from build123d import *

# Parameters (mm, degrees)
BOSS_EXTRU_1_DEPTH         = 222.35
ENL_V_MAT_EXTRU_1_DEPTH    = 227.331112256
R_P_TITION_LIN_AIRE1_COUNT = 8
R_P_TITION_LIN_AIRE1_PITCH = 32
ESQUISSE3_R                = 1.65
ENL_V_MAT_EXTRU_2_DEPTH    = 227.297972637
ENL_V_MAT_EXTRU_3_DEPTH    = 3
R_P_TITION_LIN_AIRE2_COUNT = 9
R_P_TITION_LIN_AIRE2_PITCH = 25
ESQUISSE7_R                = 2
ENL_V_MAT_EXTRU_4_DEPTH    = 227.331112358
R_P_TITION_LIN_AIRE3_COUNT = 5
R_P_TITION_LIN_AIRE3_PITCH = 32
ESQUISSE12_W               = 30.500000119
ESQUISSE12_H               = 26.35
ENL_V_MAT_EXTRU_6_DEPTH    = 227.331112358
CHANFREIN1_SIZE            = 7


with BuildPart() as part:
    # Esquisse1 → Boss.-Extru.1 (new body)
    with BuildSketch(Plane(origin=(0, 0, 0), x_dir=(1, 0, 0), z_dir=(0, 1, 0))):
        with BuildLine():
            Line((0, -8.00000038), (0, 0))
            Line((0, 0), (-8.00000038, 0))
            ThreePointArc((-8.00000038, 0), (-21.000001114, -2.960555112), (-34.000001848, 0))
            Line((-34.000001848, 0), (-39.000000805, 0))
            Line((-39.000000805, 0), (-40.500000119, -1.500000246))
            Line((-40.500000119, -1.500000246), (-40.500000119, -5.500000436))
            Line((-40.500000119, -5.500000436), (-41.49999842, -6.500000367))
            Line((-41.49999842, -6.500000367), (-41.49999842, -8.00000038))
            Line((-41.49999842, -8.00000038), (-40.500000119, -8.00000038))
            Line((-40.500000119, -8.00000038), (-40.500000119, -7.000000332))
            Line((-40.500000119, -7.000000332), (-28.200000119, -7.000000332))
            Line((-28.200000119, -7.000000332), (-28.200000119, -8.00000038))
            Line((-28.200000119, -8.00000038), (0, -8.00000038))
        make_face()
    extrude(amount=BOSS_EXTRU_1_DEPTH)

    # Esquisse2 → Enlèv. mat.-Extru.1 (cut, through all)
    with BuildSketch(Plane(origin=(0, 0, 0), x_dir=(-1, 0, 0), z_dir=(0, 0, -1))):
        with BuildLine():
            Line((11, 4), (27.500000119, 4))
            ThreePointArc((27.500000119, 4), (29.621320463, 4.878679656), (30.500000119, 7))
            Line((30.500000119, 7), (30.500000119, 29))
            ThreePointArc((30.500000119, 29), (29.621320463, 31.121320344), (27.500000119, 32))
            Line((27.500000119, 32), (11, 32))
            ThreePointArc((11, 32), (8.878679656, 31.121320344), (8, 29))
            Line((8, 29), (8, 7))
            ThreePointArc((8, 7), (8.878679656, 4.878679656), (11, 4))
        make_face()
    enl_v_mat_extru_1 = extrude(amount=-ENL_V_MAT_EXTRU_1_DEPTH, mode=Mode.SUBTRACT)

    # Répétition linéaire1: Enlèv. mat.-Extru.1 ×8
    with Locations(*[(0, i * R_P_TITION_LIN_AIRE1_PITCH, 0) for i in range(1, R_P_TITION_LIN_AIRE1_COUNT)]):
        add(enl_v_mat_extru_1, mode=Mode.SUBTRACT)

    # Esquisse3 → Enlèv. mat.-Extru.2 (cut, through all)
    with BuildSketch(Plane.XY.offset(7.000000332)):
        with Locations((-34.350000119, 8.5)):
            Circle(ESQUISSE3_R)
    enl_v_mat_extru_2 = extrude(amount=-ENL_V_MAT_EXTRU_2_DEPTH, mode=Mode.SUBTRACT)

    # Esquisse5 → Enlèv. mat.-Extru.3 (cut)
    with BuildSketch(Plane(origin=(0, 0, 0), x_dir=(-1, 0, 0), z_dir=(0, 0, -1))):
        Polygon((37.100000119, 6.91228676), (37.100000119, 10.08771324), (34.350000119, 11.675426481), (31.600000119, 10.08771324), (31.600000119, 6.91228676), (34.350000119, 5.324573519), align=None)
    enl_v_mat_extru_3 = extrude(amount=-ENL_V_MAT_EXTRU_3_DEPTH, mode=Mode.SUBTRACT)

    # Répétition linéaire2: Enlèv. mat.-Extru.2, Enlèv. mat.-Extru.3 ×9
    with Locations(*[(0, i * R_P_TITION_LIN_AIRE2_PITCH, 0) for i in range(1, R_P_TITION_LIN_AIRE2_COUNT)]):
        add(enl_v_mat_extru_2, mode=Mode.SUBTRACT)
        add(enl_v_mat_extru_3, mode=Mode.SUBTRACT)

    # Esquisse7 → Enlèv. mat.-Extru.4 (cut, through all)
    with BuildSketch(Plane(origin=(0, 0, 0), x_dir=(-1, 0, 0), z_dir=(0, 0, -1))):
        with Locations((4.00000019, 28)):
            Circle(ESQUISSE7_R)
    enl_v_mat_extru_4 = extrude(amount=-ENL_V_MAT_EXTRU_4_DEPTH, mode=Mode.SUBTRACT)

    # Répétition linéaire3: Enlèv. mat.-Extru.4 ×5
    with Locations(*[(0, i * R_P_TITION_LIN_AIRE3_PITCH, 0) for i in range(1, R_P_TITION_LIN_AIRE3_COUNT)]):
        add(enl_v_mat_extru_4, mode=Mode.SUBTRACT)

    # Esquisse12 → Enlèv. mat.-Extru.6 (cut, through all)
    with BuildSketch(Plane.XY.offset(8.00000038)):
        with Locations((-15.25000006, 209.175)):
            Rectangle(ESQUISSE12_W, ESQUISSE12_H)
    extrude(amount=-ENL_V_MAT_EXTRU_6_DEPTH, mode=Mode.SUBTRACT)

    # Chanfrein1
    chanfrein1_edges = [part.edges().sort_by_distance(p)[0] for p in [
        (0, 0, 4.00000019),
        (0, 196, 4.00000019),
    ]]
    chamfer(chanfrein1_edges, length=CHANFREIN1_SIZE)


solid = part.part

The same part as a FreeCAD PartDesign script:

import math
import FreeCAD as App
import Part
import Sketcher
from FreeCAD import Vector
Q = App.Units.Quantity


def edges_at(feature, points):
    """Names of the edges that pass closest to the given points."""
    edges = feature.Shape.Edges
    near = lambda p: min(range(len(edges)), key=lambda i: edges[i].distToShape(Part.Vertex(*p))[0])
    return sorted({f"Edge{near(p) + 1}" for p in points})


def add_polygon(sketch, points):
    """Adds a closed chain of lines whose ends are joined by coincident constraints."""
    first, n = sketch.GeometryCount, len(points)
    for a, b in zip(points, points[1:] + points[:1]):
        sketch.addGeometry(Part.LineSegment(App.Vector(*a, 0), App.Vector(*b, 0)), False)
    for i in range(n):
        sketch.addConstraint(Sketcher.Constraint("Coincident", first + i, 2, first + (i + 1) % n, 1))

doc = App.newDocument("Part")
body = doc.addObject("PartDesign::Body", "Body")

# Sketch on XZ plane
sketch1 = doc.addObject("Sketcher::SketchObject", "Sketch")
body.addObject(sketch1)
sketch1.AttachmentSupport = (doc.XZ_Plane, [""])
sketch1.MapMode = "FlatFace"
sketch1.addGeometry([
    Part.LineSegment(Vector(0, 8, 0), Vector(0, 0, 0)),  # 0
    Part.LineSegment(Vector(0, 0, 0), Vector(-8, 0, 0)),  # 1
    Part.ArcOfCircle(Part.Circle(Vector(-21, -27.1, 0), Vector(0, 0, 1), 30), math.radians(64), math.radians(116)),  # 2
    Part.LineSegment(Vector(-34, 0, 0), Vector(-39, 0, 0)),  # 3
    Part.LineSegment(Vector(-39, 0, 0), Vector(-40.5, 1.5, 0)),  # 4
    Part.LineSegment(Vector(-40.5, 1.5, 0), Vector(-40.5, 5.5, 0)),  # 5
    Part.LineSegment(Vector(-40.5, 5.5, 0), Vector(-41.5, 6.5, 0)),  # 6
    Part.LineSegment(Vector(-41.5, 6.5, 0), Vector(-41.5, 8, 0)),  # 7
    Part.LineSegment(Vector(-41.5, 8, 0), Vector(-40.5, 8, 0)),  # 8
    Part.LineSegment(Vector(-40.5, 8, 0), Vector(-40.5, 7, 0)),  # 9
    Part.LineSegment(Vector(-40.5, 7, 0), Vector(-28.2, 7, 0)),  # 10
    Part.LineSegment(Vector(-28.2, 7, 0), Vector(-28.2, 8, 0)),  # 11
    Part.LineSegment(Vector(-28.2, 8, 0), Vector(0, 8, 0)),  # 12
], False)
sketch1.addConstraint([
    Sketcher.Constraint("Coincident", 0, 2, 1, 1),
    Sketcher.Constraint("Coincident", 1, 2, 2, 1),
    Sketcher.Constraint("Coincident", 2, 2, 3, 1),
    Sketcher.Constraint("Coincident", 3, 2, 4, 1),
    Sketcher.Constraint("Coincident", 4, 2, 5, 1),
    Sketcher.Constraint("Coincident", 5, 2, 6, 1),
    Sketcher.Constraint("Coincident", 6, 2, 7, 1),
    Sketcher.Constraint("Coincident", 7, 2, 8, 1),
    Sketcher.Constraint("Coincident", 8, 2, 9, 1),
    Sketcher.Constraint("Coincident", 9, 2, 10, 1),
    Sketcher.Constraint("Coincident", 10, 2, 11, 1),
    Sketcher.Constraint("Coincident", 11, 2, 12, 1),
    Sketcher.Constraint("Coincident", 12, 2, 0, 1),
    Sketcher.Constraint("Vertical", 0),
    Sketcher.Constraint("Horizontal", 1),
    Sketcher.Constraint("Horizontal", 3),
    Sketcher.Constraint("Vertical", 5),
    Sketcher.Constraint("Vertical", 7),
    Sketcher.Constraint("Horizontal", 8),
    Sketcher.Constraint("Vertical", 9),
    Sketcher.Constraint("Horizontal", 10),
    Sketcher.Constraint("Vertical", 11),
    Sketcher.Constraint("Horizontal", 12),
    Sketcher.Constraint("Coincident", 0, 2, -1, 1),
    Sketcher.Constraint("PointOnObject", 2, 2, -1),
    Sketcher.Constraint("Parallel", 4, 6),
    Sketcher.Constraint("Horizontal", 8, 2, 11, 2),
    Sketcher.Constraint("Vertical", 5, 2, 8, 2),
    Sketcher.Constraint("Equal", 1, 0),
    Sketcher.Constraint("Equal", 8, 9),
    Sketcher.Constraint("DistanceX", 1, 2, 1, 1, Q("8 mm")),
    Sketcher.Constraint("DistanceX", 3, 2, 3, 1, Q("4.999999 mm")),
    Sketcher.Constraint("DistanceX", 8, 1, 8, 2, Q("0.999998 mm")),
    Sketcher.Constraint("DistanceY", 5, 1, 5, 2, Q("4 mm")),
    Sketcher.Constraint("Angle", 4, Q("134.999982 deg")),
    Sketcher.Constraint("DistanceX", 10, 1, 10, 2, Q("12.3 mm")),
    Sketcher.Constraint("DistanceX", 12, 1, 12, 2, Q("28.2 mm")),
    Sketcher.Constraint("DistanceY", 7, 1, 7, 2, Q("1.5 mm")),
    Sketcher.Constraint("Radius", 2, Q("30.022225 mm")),
])
pad1 = doc.addObject("PartDesign::Pad", "Pad")
body.addObject(pad1)
pad1.Profile = sketch1
pad1.Length = 222.35
pad1.Reversed = True

# Sketch on XY plane
sketch2 = doc.addObject("Sketcher::SketchObject", "Sketch001")
body.addObject(sketch2)
sketch2.AttachmentSupport = (doc.XY_Plane, [""])
sketch2.MapMode = "FlatFace"
sketch2.addGeometry([
    Part.LineSegment(Vector(-11, 4, 0), Vector(-27.5, 4, 0)),  # 0
    Part.ArcOfCircle(Part.Circle(Vector(-27.5, 7, 0), Vector(0, 0, 1), 3), math.radians(180), math.radians(270)),  # 1
    Part.LineSegment(Vector(-30.5, 7, 0), Vector(-30.5, 29, 0)),  # 2
    Part.ArcOfCircle(Part.Circle(Vector(-27.5, 29, 0), Vector(0, 0, 1), 3), math.radians(90), math.radians(180)),  # 3
    Part.LineSegment(Vector(-27.5, 32, 0), Vector(-11, 32, 0)),  # 4
    Part.ArcOfCircle(Part.Circle(Vector(-11, 29, 0), Vector(0, 0, 1), 3), math.radians(0), math.radians(90)),  # 5
    Part.LineSegment(Vector(-8, 29, 0), Vector(-8, 7, 0)),  # 6
    Part.ArcOfCircle(Part.Circle(Vector(-11, 7, 0), Vector(0, 0, 1), 3), math.radians(-90), math.radians(0)),  # 7
], False)
sketch2.addConstraint([
    Sketcher.Constraint("Tangent", 0, 2, 1, 2),
    Sketcher.Constraint("Tangent", 1, 1, 2, 1),
    Sketcher.Constraint("Tangent", 2, 2, 3, 2),
    Sketcher.Constraint("Tangent", 3, 1, 4, 1),
    Sketcher.Constraint("Tangent", 4, 2, 5, 2),
    Sketcher.Constraint("Tangent", 5, 1, 6, 1),
    Sketcher.Constraint("Tangent", 6, 2, 7, 2),
    Sketcher.Constraint("Tangent", 7, 1, 0, 1),
    Sketcher.Constraint("Horizontal", 0),
    Sketcher.Constraint("Vertical", 2),
    Sketcher.Constraint("Horizontal", 4),
    Sketcher.Constraint("Vertical", 6),
    Sketcher.Constraint("Equal", 1, 3),
    Sketcher.Constraint("Equal", 3, 5),
    Sketcher.Constraint("Equal", 5, 7),
    Sketcher.Constraint("Radius", 1, Q("3 mm")),
    Sketcher.Constraint("DistanceY", 2, 1, 2, 2, Q("22 mm")),
    Sketcher.Constraint("DistanceX", 0, 2, 0, 1, Q("16.5 mm")),
    Sketcher.Constraint("DistanceY", -1, 1, 1, 3, Q("7 mm")),
    Sketcher.Constraint("DistanceX", 5, 3, -1, 1, Q("11 mm")),
])
pocket1 = doc.addObject("PartDesign::Pocket", "Pocket")
body.addObject(pocket1)
pocket1.Profile = sketch2
pocket1.Type = "ThroughAll"
pocket1.Reversed = True
doc.recompute()

linearpattern = doc.addObject("PartDesign::LinearPattern", "LinearPattern")
body.addObject(linearpattern)
linearpattern.Originals = [pocket1]
linearpattern.Direction = (doc.Y_Axis, [""])
linearpattern.Mode = "offset"
linearpattern.Offset = 32
linearpattern.Occurrences = 8
body.Tip = linearpattern

# Sketch on XY plane
sketch3 = doc.addObject("Sketcher::SketchObject", "Sketch002")
body.addObject(sketch3)
sketch3.AttachmentSupport = (doc.XY_Plane, [""])
sketch3.MapMode = "FlatFace"
sketch3.AttachmentOffset = App.Placement(Vector(0, 0, 7), App.Rotation())
sketch3.addGeometry(Part.Circle(Vector(-34.4, 8.5, 0), Vector(0, 0, 1), 1.6), False)
sketch3.addConstraint([
    Sketcher.Constraint("Diameter", 0, Q("3.3 mm")),
    Sketcher.Constraint("DistanceY", -1, 1, 0, 3, Q("8.5 mm")),
    Sketcher.Constraint("DistanceX", 0, 3, -1, 1, Q("34.35 mm")),
])
pocket2 = doc.addObject("PartDesign::Pocket", "Pocket001")
body.addObject(pocket2)
pocket2.Profile = sketch3
pocket2.Type = "ThroughAll"

# Sketch on XY plane
sketch4 = doc.addObject("Sketcher::SketchObject", "Sketch003")
body.addObject(sketch4)
sketch4.AttachmentSupport = (doc.XY_Plane, [""])
sketch4.MapMode = "FlatFace"
add_polygon(sketch4, [(-37.1, 6.9), (-37.1, 10.1), (-34.4, 11.7), (-31.6, 10.1), (-31.6, 6.9), (-34.4, 5.3)])  # lines 0-5
sketch4.addConstraint([
    Sketcher.Constraint("Vertical", 0),
    Sketcher.Constraint("Vertical", 3),
    Sketcher.Constraint("Parallel", 1, 4),
    Sketcher.Constraint("Parallel", 2, 5),
    Sketcher.Constraint("Horizontal", 0, 2, 2, 2),
    Sketcher.Constraint("Horizontal", 3, 2, 5, 2),
    Sketcher.Constraint("Vertical", 1, 2, 4, 2),
    Sketcher.Constraint("Angle", 1, Q("30 deg")),
    Sketcher.Constraint("DistanceX", 0, 2, -1, 1, Q("37.1 mm")),
    Sketcher.Constraint("DistanceX", 2, 2, -1, 1, Q("31.6 mm")),
    Sketcher.Constraint("DistanceY", 0, 1, 0, 2, Q("3.175426 mm")),
    Sketcher.Constraint("DistanceY", -1, 1, 0, 2, Q("10.087713 mm")),
])
pocket3 = doc.addObject("PartDesign::Pocket", "Pocket002")
body.addObject(pocket3)
pocket3.Profile = sketch4
pocket3.Length = 3
pocket3.Reversed = True
doc.recompute()

linearpattern2 = doc.addObject("PartDesign::LinearPattern", "LinearPattern001")
body.addObject(linearpattern2)
linearpattern2.Originals = [pocket2, pocket3]
linearpattern2.Direction = (doc.Y_Axis, [""])
linearpattern2.Mode = "offset"
linearpattern2.Offset = 25
linearpattern2.Occurrences = 9
body.Tip = linearpattern2

# Sketch on XY plane
sketch5 = doc.addObject("Sketcher::SketchObject", "Sketch004")
body.addObject(sketch5)
sketch5.AttachmentSupport = (doc.XY_Plane, [""])
sketch5.MapMode = "FlatFace"
sketch5.addGeometry(Part.Circle(Vector(-4, 28, 0), Vector(0, 0, 1), 2), False)
sketch5.addConstraint([
    Sketcher.Constraint("Diameter", 0, Q("4 mm")),
    Sketcher.Constraint("DistanceX", 0, 3, -1, 1, Q("4 mm")),
    Sketcher.Constraint("DistanceY", -1, 1, 0, 3, Q("28 mm")),
])
pocket4 = doc.addObject("PartDesign::Pocket", "Pocket003")
body.addObject(pocket4)
pocket4.Profile = sketch5
pocket4.Type = "ThroughAll"
pocket4.Reversed = True
doc.recompute()

linearpattern3 = doc.addObject("PartDesign::LinearPattern", "LinearPattern002")
body.addObject(linearpattern3)
linearpattern3.Originals = [pocket4]
linearpattern3.Direction = (doc.Y_Axis, [""])
linearpattern3.Mode = "offset"
linearpattern3.Offset = 32
linearpattern3.Occurrences = 5
body.Tip = linearpattern3

# Sketch on XY plane
sketch6 = doc.addObject("Sketcher::SketchObject", "Sketch005")
body.addObject(sketch6)
sketch6.AttachmentSupport = (doc.XY_Plane, [""])
sketch6.MapMode = "FlatFace"
sketch6.AttachmentOffset = App.Placement(Vector(0, 0, 8), App.Rotation())
add_polygon(sketch6, [(-31, 222), (-31, 196), (0, 196), (0, 222)])  # lines 0-3
sketch6.addConstraint([
    Sketcher.Constraint("Vertical", 0),
    Sketcher.Constraint("Horizontal", 1),
    Sketcher.Constraint("Vertical", 2),
    Sketcher.Constraint("Horizontal", 3),
    Sketcher.Constraint("PointOnObject", 1, 2, -2),
    Sketcher.Constraint("DistanceX", 1, 1, 1, 2, Q("30.5 mm")),
    Sketcher.Constraint("DistanceY", -1, 1, 0, 2, Q("196 mm")),
    Sketcher.Constraint("DistanceY", 0, 2, 0, 1, Q("26.35 mm")),
])
pocket5 = doc.addObject("PartDesign::Pocket", "Pocket004")
body.addObject(pocket5)
pocket5.Profile = sketch6
pocket5.Type = "ThroughAll"
doc.recompute()

chamfer = doc.addObject("PartDesign::Chamfer", "Chamfer")
body.addObject(chamfer)
chamfer.Base = (pocket5, edges_at(pocket5, [(0, 0, 4), (0, 196, 4)]))
chamfer.Size = 7

doc.recompute()
